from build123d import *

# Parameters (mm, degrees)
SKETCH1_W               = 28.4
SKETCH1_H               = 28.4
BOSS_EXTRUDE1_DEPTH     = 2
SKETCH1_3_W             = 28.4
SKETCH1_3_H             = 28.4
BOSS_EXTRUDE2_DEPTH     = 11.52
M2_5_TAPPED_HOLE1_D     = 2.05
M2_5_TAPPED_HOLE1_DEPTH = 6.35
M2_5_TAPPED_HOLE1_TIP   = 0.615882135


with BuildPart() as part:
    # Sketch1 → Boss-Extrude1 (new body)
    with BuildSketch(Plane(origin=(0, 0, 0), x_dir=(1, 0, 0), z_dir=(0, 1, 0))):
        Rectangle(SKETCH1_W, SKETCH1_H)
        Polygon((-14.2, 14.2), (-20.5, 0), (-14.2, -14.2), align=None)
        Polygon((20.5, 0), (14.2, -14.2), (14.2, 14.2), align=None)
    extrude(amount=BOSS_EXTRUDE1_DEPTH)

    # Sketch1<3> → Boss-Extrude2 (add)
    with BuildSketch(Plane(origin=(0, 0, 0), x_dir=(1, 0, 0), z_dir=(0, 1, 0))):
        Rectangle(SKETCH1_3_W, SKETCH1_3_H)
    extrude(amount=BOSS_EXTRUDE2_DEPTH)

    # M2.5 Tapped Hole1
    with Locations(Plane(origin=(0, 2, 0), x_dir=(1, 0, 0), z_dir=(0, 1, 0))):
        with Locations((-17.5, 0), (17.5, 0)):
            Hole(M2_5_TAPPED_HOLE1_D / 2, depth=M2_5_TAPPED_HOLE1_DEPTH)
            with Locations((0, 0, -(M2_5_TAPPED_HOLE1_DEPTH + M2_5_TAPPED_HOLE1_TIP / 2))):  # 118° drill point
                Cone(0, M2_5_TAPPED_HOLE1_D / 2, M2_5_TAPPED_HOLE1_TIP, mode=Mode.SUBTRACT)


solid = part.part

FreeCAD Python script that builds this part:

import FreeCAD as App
import Part
import Sketcher

doc = App.newDocument("Part")
body = doc.addObject("PartDesign::Body", "Body")

sketch1 = body.newObject("Sketcher::SketchObject", "Sketch")
sketch1.AttachmentSupport = (doc.getObject("XZ_Plane"), [""])
sketch1.MapMode = "FlatFace"
sketch1.addGeometry(Part.LineSegment(App.Vector(-14, 14, 0), App.Vector(14, 14, 0)), False)
sketch1.addGeometry(Part.LineSegment(App.Vector(14, 14, 0), App.Vector(20, 0, 0)), False)
sketch1.addGeometry(Part.LineSegment(App.Vector(20, 0, 0), App.Vector(14, -14, 0)), False)
sketch1.addGeometry(Part.LineSegment(App.Vector(14, -14, 0), App.Vector(-14, -14, 0)), False)
sketch1.addGeometry(Part.LineSegment(App.Vector(-14, -14, 0), App.Vector(-20, 0, 0)), False)
sketch1.addGeometry(Part.LineSegment(App.Vector(-20, 0, 0), App.Vector(-14, 14, 0)), False)
sketch1.addConstraint(Sketcher.Constraint("Coincident", 0, 2, 1, 1))
sketch1.addConstraint(Sketcher.Constraint("Coincident", 1, 2, 2, 1))
sketch1.addConstraint(Sketcher.Constraint("Coincident", 2, 2, 3, 1))
sketch1.addConstraint(Sketcher.Constraint("Coincident", 3, 2, 4, 1))
sketch1.addConstraint(Sketcher.Constraint("Coincident", 4, 2, 5, 1))
sketch1.addConstraint(Sketcher.Constraint("Coincident", 5, 2, 0, 1))
sketch1.addConstraint(Sketcher.Constraint("Horizontal", 0))
sketch1.addConstraint(Sketcher.Constraint("Horizontal", 3))
sketch1.addConstraint(Sketcher.Constraint("Symmetric", 0, 2, 3, 2, -1, 1))
sketch1.addConstraint(Sketcher.Constraint("Symmetric", 1, 2, 4, 2, -1, 1))
sketch1.addConstraint(Sketcher.Constraint("PointOnObject", 1, 2, -1))
sketch1.addConstraint(Sketcher.Constraint("Parallel", 2, 5))
sketch1.addConstraint(Sketcher.Constraint("Vertical", 0, 2, 2, 2))
sketch1.addConstraint(Sketcher.Constraint("DistanceX", 0, 1, 0, 2, 28.4))
sketch1.addConstraint(Sketcher.Constraint("DistanceX", 4, 2, 1, 2, 41.0))
sketch1.addConstraint(Sketcher.Constraint("DistanceY", -1, 1, 0, 2, 14.2))
pad1 = body.newObject("PartDesign::Pad", "Pad")
pad1.Profile = sketch1
pad1.Length = 2
pad1.Reversed = True

sketch2 = body.newObject("Sketcher::SketchObject", "Sketch001")
sketch2.AttachmentSupport = (doc.getObject("XZ_Plane"), [""])
sketch2.MapMode = "FlatFace"
sketch2.addGeometry(Part.LineSegment(App.Vector(-14, -14, 0), App.Vector(-14, 14, 0)), False)
sketch2.addGeometry(Part.LineSegment(App.Vector(-14, 14, 0), App.Vector(14, 14, 0)), False)
sketch2.addGeometry(Part.LineSegment(App.Vector(14, 14, 0), App.Vector(14, -14, 0)), False)
sketch2.addGeometry(Part.LineSegment(App.Vector(14, -14, 0), App.Vector(-14, -14, 0)), False)
sketch2.addConstraint(Sketcher.Constraint("Coincident", 0, 2, 1, 1))
sketch2.addConstraint(Sketcher.Constraint("Coincident", 1, 2, 2, 1))
sketch2.addConstraint(Sketcher.Constraint("Coincident", 2, 2, 3, 1))
sketch2.addConstraint(Sketcher.Constraint("Coincident", 3, 2, 0, 1))
sketch2.addConstraint(Sketcher.Constraint("Vertical", 0))
sketch2.addConstraint(Sketcher.Constraint("Horizontal", 1))
sketch2.addConstraint(Sketcher.Constraint("Vertical", 2))
sketch2.addConstraint(Sketcher.Constraint("Horizontal", 3))
sketch2.addConstraint(Sketcher.Constraint("Symmetric", 0, 2, 2, 2, -1, 1))
sketch2.addConstraint(Sketcher.Constraint("Equal", 3, 0))
sketch2.addConstraint(Sketcher.Constraint("DistanceX", 1, 1, 1, 2, 28.4))
pad2 = body.newObject("PartDesign::Pad", "Pad001")
pad2.Profile = sketch2
pad2.Length = 11.52
pad2.Reversed = True

sketch3 = body.newObject("Sketcher::SketchObject", "Sketch002")
sketch3.AttachmentSupport = (doc.getObject("XZ_Plane"), [""])
sketch3.MapMode = "FlatFace"
sketch3.AttachmentOffset = App.Placement(App.Vector(0, 0, -2), App.Rotation())
sketch3.addGeometry(Part.Circle(App.Vector(-17.5, 0, 0), App.Vector(0, 0, 1), 1), False)
sketch3.addGeometry(Part.Circle(App.Vector(17.5, 0, 0), App.Vector(0, 0, 1), 1), False)
sketch3.addConstraint(Sketcher.Constraint("Equal", 0, 1))
sketch3.addConstraint(Sketcher.Constraint("Symmetric", 0, 3, 1, 3, -1, 1))
sketch3.addConstraint(Sketcher.Constraint("PointOnObject", 0, 3, -1))
sketch3.addConstraint(Sketcher.Constraint("Diameter", 0, 2.05))
sketch3.addConstraint(Sketcher.Constraint("DistanceX", 0, 3, 1, 3, 35.0))
doc.recompute()
hole = body.newObject("PartDesign::Hole", "Hole")
hole.Profile = sketch3
hole.ThreadType = "None"
hole.Diameter = 2.05
hole.DepthType = "Dimension"
hole.Depth = 6.35
hole.DrillPoint = "Angled"
hole.DrillPointAngle = 118
hole.Reversed = True

doc.recompute()
